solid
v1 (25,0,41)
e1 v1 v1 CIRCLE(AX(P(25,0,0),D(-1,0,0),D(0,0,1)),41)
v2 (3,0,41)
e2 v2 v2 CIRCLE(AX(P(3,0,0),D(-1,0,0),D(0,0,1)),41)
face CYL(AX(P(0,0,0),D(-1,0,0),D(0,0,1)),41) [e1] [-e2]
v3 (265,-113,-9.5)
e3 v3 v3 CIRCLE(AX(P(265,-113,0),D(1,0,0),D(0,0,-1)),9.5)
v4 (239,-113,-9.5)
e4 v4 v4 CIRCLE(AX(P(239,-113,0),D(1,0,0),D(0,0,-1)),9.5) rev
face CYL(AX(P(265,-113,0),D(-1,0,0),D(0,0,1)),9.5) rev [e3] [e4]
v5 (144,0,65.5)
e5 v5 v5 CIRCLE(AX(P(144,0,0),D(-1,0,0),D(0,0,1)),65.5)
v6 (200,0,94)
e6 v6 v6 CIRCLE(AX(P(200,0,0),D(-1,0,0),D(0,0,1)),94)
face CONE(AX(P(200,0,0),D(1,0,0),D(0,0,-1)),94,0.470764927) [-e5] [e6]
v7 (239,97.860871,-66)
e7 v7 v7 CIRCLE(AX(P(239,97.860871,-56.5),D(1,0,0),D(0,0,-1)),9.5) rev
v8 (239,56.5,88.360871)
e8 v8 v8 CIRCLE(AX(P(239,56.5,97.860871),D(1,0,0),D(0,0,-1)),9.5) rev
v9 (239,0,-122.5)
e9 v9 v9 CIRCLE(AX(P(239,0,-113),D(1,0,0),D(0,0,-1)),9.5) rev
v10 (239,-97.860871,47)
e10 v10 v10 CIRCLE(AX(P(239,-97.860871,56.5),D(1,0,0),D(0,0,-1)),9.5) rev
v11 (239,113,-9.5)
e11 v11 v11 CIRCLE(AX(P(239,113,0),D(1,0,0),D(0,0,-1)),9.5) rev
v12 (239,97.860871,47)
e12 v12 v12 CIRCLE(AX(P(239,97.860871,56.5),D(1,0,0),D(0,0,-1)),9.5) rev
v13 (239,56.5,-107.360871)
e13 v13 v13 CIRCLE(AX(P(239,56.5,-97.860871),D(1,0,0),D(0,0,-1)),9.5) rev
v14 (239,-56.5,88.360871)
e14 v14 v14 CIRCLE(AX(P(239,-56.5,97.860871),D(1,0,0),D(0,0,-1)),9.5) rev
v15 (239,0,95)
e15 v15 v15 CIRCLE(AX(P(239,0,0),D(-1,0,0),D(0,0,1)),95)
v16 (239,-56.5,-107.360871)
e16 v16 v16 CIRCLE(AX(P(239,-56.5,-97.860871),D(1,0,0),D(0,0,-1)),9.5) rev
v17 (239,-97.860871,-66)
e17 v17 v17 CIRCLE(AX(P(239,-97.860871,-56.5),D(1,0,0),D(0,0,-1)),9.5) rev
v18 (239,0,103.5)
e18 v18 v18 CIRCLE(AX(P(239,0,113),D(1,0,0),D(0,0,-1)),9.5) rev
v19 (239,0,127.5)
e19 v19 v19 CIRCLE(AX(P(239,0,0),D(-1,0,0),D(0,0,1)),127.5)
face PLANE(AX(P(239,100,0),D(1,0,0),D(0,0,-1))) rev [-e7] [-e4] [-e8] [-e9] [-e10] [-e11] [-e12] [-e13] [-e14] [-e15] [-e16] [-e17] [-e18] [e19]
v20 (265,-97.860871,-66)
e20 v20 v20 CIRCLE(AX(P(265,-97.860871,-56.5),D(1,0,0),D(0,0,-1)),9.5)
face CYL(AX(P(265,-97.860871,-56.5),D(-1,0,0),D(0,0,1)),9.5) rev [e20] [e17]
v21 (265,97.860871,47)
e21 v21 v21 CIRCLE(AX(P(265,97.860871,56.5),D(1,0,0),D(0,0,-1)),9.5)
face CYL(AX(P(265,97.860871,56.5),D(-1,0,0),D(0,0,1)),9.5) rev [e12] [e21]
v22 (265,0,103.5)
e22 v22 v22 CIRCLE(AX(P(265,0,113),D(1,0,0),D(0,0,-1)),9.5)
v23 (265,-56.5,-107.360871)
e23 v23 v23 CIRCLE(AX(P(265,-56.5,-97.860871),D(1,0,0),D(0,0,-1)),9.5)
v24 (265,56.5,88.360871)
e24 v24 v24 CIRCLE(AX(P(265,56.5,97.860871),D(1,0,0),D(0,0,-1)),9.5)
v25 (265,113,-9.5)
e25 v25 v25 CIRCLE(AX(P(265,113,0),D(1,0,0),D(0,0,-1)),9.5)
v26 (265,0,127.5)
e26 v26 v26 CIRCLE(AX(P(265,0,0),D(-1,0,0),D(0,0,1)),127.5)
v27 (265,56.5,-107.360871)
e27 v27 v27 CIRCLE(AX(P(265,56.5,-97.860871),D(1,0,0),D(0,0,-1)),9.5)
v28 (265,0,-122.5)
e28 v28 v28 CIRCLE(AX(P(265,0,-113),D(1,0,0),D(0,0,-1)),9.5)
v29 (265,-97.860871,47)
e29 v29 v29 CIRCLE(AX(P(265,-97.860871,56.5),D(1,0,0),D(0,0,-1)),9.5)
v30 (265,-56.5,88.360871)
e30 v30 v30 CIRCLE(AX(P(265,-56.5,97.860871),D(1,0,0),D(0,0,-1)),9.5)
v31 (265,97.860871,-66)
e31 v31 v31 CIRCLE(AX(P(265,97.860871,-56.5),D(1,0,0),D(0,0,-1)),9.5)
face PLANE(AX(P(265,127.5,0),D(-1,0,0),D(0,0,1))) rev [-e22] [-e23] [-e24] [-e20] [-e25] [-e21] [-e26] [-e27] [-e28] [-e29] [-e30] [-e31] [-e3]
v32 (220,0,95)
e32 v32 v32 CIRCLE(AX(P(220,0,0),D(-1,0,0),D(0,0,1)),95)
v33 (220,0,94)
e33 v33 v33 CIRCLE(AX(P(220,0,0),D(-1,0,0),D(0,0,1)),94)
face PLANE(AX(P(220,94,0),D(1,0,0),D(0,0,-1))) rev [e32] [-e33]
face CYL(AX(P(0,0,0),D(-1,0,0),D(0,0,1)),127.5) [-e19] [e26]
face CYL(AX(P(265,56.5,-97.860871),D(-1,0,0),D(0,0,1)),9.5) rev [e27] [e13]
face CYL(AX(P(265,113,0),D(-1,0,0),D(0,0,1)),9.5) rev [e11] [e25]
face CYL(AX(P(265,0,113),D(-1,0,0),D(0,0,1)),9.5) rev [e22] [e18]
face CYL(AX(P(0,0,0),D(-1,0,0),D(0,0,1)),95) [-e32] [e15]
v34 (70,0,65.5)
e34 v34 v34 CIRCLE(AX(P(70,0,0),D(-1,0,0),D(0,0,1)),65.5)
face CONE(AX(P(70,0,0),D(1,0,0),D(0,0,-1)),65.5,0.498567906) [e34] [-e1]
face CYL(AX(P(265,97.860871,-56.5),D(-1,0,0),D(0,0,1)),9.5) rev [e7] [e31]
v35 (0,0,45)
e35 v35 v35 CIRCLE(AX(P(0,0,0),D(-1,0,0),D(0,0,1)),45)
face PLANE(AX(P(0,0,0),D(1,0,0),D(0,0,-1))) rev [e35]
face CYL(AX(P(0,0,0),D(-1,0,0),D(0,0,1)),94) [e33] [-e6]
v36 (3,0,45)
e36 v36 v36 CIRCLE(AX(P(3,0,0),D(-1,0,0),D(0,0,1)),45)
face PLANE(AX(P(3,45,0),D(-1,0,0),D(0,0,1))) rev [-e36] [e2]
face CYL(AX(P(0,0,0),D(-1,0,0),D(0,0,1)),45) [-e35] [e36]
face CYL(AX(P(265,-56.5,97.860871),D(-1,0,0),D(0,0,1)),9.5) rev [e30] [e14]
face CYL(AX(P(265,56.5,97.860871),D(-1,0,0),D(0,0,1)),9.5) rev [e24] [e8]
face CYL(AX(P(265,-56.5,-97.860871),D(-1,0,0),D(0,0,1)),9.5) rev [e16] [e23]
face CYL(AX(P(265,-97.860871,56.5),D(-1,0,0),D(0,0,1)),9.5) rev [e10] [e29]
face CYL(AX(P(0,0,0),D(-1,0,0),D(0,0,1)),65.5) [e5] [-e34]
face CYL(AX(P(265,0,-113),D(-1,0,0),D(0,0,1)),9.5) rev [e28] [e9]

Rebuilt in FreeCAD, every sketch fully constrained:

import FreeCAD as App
import Part
import Sketcher

V = App.Vector
Q = App.Units.Quantity


def add_polygon(sketch, points):
    """Adds a closed chain of lines whose ends are joined by coincident constraints."""
    first, n = sketch.GeometryCount, len(points)
    for a, b in zip(points, points[1:] + points[:1]):
        sketch.addGeometry(Part.LineSegment(App.Vector(*a, 0), App.Vector(*b, 0)), False)
    for i in range(n):
        sketch.addConstraint(Sketcher.Constraint("Coincident", first + i, 2, first + (i + 1) % n, 1))

doc = App.newDocument("Part")
body = doc.addObject("PartDesign::Body", "Body")

sketch1 = body.newObject("Sketcher::SketchObject", "Sketch")
sketch1.AttachmentSupport = (doc.getObject("XY_Plane"), [""])
sketch1.MapMode = "FlatFace"
add_polygon(sketch1, [(0, 0), (265, 0), (265, 127.5), (239, 127.5), (239, 95), (220, 95), (220, 94), (200, 94), (144, 65.5), (70, 65.5), (25, 41), (3, 41), (3, 45), (0, 45)])
sketch1.addConstraint([
    Sketcher.Constraint("Horizontal", 0),
    Sketcher.Constraint("Vertical", 1),
    Sketcher.Constraint("Horizontal", 2),
    Sketcher.Constraint("Vertical", 3),
    Sketcher.Constraint("Horizontal", 4),
    Sketcher.Constraint("Vertical", 5),
    Sketcher.Constraint("Horizontal", 6),
    Sketcher.Constraint("Horizontal", 8),
    Sketcher.Constraint("Horizontal", 10),
    Sketcher.Constraint("Vertical", 11),
    Sketcher.Constraint("Horizontal", 12),
    Sketcher.Constraint("Vertical", 13),
    Sketcher.Constraint("Coincident", 13, 2, -1, 1),
    Sketcher.Constraint("DistanceX", 0, 1, 0, 2, Q("265 mm")),
    Sketcher.Constraint("DistanceX", 2, 2, 2, 1, Q("26 mm")),
    Sketcher.Constraint("DistanceX", 4, 2, 4, 1, Q("19 mm")),
    Sketcher.Constraint("DistanceX", 6, 2, 6, 1, Q("20 mm")),
    Sketcher.Constraint("DistanceX", 8, 2, 8, 1, Q("74 mm")),
    Sketcher.Constraint("DistanceX", 10, 2, 10, 1, Q("22 mm")),
    Sketcher.Constraint("DistanceX", 12, 2, 12, 1, Q("3 mm")),
    Sketcher.Constraint("DistanceY", 5, 2, 5, 1, Q("1 mm")),
    Sketcher.Constraint("DistanceY", 11, 1, 11, 2, Q("4 mm")),
    Sketcher.Constraint("DistanceY", 13, 2, 13, 1, Q("45 mm")),
    Sketcher.Constraint("DistanceY", 1, 1, 1, 2, Q("127.5 mm")),
    Sketcher.Constraint("DistanceY", 3, 2, 3, 1, Q("32.5 mm")),
    Sketcher.Constraint("DistanceX", -1, 1, 7, 2, Q("144 mm")),
    Sketcher.Constraint("DistanceY", 7, 2, 2, 2, Q("62 mm")),
])
revolution = body.newObject("PartDesign::Revolution", "Revolution")
revolution.Profile = sketch1
revolution.ReferenceAxis = (sketch1, ["H_Axis"])
revolution.Angle = 360

sketch2 = body.newObject("Sketcher::SketchObject", "Sketch001")
sketch2.AttachmentSupport = (doc.getObject("YZ_Plane"), [""])
sketch2.MapMode = "FlatFace"
sketch2.addGeometry(Part.Circle(V(113, 0, 0), V(0, 0, 1), 10), False)
sketch2.addConstraint([
    Sketcher.Constraint("PointOnObject", 0, 3, -1),
    Sketcher.Constraint("Diameter", 0, Q("19 mm")),
    Sketcher.Constraint("DistanceX", -1, 1, 0, 3, Q("113 mm")),
])
pocket1 = body.newObject("PartDesign::Pocket", "Pocket")
pocket1.Profile = sketch2
pocket1.Type = "ThroughAll"
pocket1.Reversed = True

sketch3 = body.newObject("Sketcher::SketchObject", "Sketch002")
sketch3.AttachmentSupport = (doc.getObject("YZ_Plane"), [""])
sketch3.MapMode = "FlatFace"
sketch3.addGeometry(Part.Circle(V(98, 56, 0), V(0, 0, 1), 10), False)
sketch3.addConstraint([
    Sketcher.Constraint("Diameter", 0, Q("19 mm")),
    Sketcher.Constraint("DistanceY", -1, 1, 0, 3, Q("56.5 mm")),
    Sketcher.Constraint("DistanceX", -1, 1, 0, 3, Q("97.860871 mm")),
])
pocket2 = body.newObject("PartDesign::Pocket", "Pocket001")
pocket2.Profile = sketch3
pocket2.Type = "ThroughAll"
pocket2.Reversed = True

sketch4 = body.newObject("Sketcher::SketchObject", "Sketch003")
sketch4.AttachmentSupport = (doc.getObject("YZ_Plane"), [""])
sketch4.MapMode = "FlatFace"
sketch4.addGeometry(Part.Circle(V(56, 98, 0), V(0, 0, 1), 10), False)
sketch4.addConstraint([
    Sketcher.Constraint("Diameter", 0, Q("19 mm")),
    Sketcher.Constraint("DistanceX", -1, 1, 0, 3, Q("56.5 mm")),
    Sketcher.Constraint("DistanceY", -1, 1, 0, 3, Q("97.860871 mm")),
])
pocket3 = body.newObject("PartDesign::Pocket", "Pocket002")
pocket3.Profile = sketch4
pocket3.Type = "ThroughAll"
pocket3.Reversed = True

sketch5 = body.newObject("Sketcher::SketchObject", "Sketch004")
sketch5.AttachmentSupport = (doc.getObject("YZ_Plane"), [""])
sketch5.MapMode = "FlatFace"
sketch5.addGeometry(Part.Circle(V(0, 113, 0), V(0, 0, 1), 10), False)
sketch5.addConstraint([
    Sketcher.Constraint("PointOnObject", 0, 3, -2),
    Sketcher.Constraint("Diameter", 0, Q("19 mm")),
    Sketcher.Constraint("DistanceY", -1, 1, 0, 3, Q("113 mm")),
])
pocket4 = body.newObject("PartDesign::Pocket", "Pocket003")
pocket4.Profile = sketch5
pocket4.Type = "ThroughAll"
pocket4.Reversed = True

sketch6 = body.newObject("Sketcher::SketchObject", "Sketch005")
sketch6.AttachmentSupport = (doc.getObject("YZ_Plane"), [""])
sketch6.MapMode = "FlatFace"
sketch6.addGeometry(Part.Circle(V(-56, 98, 0), V(0, 0, 1), 10), False)
sketch6.addConstraint([
    Sketcher.Constraint("Diameter", 0, Q("19 mm")),
    Sketcher.Constraint("DistanceX", 0, 3, -1, 1, Q("56.5 mm")),
    Sketcher.Constraint("DistanceY", -1, 1, 0, 3, Q("97.860871 mm")),
])
pocket5 = body.newObject("PartDesign::Pocket", "Pocket004")
pocket5.Profile = sketch6
pocket5.Type = "ThroughAll"
pocket5.Reversed = True

sketch7 = body.newObject("Sketcher::SketchObject", "Sketch006")
sketch7.AttachmentSupport = (doc.getObject("YZ_Plane"), [""])
sketch7.MapMode = "FlatFace"
sketch7.addGeometry(Part.Circle(V(-98, 56, 0), V(0, 0, 1), 10), False)
sketch7.addConstraint([
    Sketcher.Constraint("Diameter", 0, Q("19 mm")),
    Sketcher.Constraint("DistanceY", -1, 1, 0, 3, Q("56.5 mm")),
    Sketcher.Constraint("DistanceX", 0, 3, -1, 1, Q("97.860871 mm")),
])
pocket6 = body.newObject("PartDesign::Pocket", "Pocket005")
pocket6.Profile = sketch7
pocket6.Type = "ThroughAll"
pocket6.Reversed = True

sketch8 = body.newObject("Sketcher::SketchObject", "Sketch007")
sketch8.AttachmentSupport = (doc.getObject("YZ_Plane"), [""])
sketch8.MapMode = "FlatFace"
sketch8.addGeometry(Part.Circle(V(-113, 0, 0), V(0, 0, 1), 10), False)
sketch8.addConstraint([
    Sketcher.Constraint("PointOnObject", 0, 3, -1),
    Sketcher.Constraint("Diameter", 0, Q("19 mm")),
    Sketcher.Constraint("DistanceX", 0, 3, -1, 1, Q("113 mm")),
])
pocket7 = body.newObject("PartDesign::Pocket", "Pocket006")
pocket7.Profile = sketch8
pocket7.Type = "ThroughAll"
pocket7.Reversed = True

sketch9 = body.newObject("Sketcher::SketchObject", "Sketch008")
sketch9.AttachmentSupport = (doc.getObject("YZ_Plane"), [""])
sketch9.MapMode = "FlatFace"
sketch9.addGeometry(Part.Circle(V(-98, -56, 0), V(0, 0, 1), 10), False)
sketch9.addConstraint([
    Sketcher.Constraint("Diameter", 0, Q("19 mm")),
    Sketcher.Constraint("DistanceY", 0, 3, -1, 1, Q("56.5 mm")),
    Sketcher.Constraint("DistanceX", 0, 3, -1, 1, Q("97.860871 mm")),
])
pocket8 = body.newObject("PartDesign::Pocket", "Pocket007")
pocket8.Profile = sketch9
pocket8.Type = "ThroughAll"
pocket8.Reversed = True

sketch10 = body.newObject("Sketcher::SketchObject", "Sketch009")
sketch10.AttachmentSupport = (doc.getObject("YZ_Plane"), [""])
sketch10.MapMode = "FlatFace"
sketch10.addGeometry(Part.Circle(V(-56, -98, 0), V(0, 0, 1), 10), False)
sketch10.addConstraint([
    Sketcher.Constraint("Diameter", 0, Q("19 mm")),
    Sketcher.Constraint("DistanceX", 0, 3, -1, 1, Q("56.5 mm")),
    Sketcher.Constraint("DistanceY", 0, 3, -1, 1, Q("97.860871 mm")),
])
pocket9 = body.newObject("PartDesign::Pocket", "Pocket008")
pocket9.Profile = sketch10
pocket9.Type = "ThroughAll"
pocket9.Reversed = True

sketch11 = body.newObject("Sketcher::SketchObject", "Sketch010")
sketch11.AttachmentSupport = (doc.getObject("YZ_Plane"), [""])
sketch11.MapMode = "FlatFace"
sketch11.addGeometry(Part.Circle(V(0, -113, 0), V(0, 0, 1), 10), False)
sketch11.addConstraint([
    Sketcher.Constraint("PointOnObject", 0, 3, -2),
    Sketcher.Constraint("Diameter", 0, Q("19 mm")),
    Sketcher.Constraint("DistanceY", 0, 3, -1, 1, Q("113 mm")),
])
pocket10 = body.newObject("PartDesign::Pocket", "Pocket009")
pocket10.Profile = sketch11
pocket10.Type = "ThroughAll"
pocket10.Reversed = True

sketch12 = body.newObject("Sketcher::SketchObject", "Sketch011")
sketch12.AttachmentSupport = (doc.getObject("YZ_Plane"), [""])
sketch12.MapMode = "FlatFace"
sketch12.addGeometry(Part.Circle(V(56, -98, 0), V(0, 0, 1), 10), False)
sketch12.addConstraint([
    Sketcher.Constraint("Diameter", 0, Q("19 mm")),
    Sketcher.Constraint("DistanceX", -1, 1, 0, 3, Q("56.5 mm")),
    Sketcher.Constraint("DistanceY", 0, 3, -1, 1, Q("97.860871 mm")),
])
pocket11 = body.newObject("PartDesign::Pocket", "Pocket010")
pocket11.Profile = sketch12
pocket11.Type = "ThroughAll"
pocket11.Reversed = True

sketch13 = body.newObject("Sketcher::SketchObject", "Sketch012")
sketch13.AttachmentSupport = (doc.getObject("YZ_Plane"), [""])
sketch13.MapMode = "FlatFace"
sketch13.addGeometry(Part.Circle(V(98, -56, 0), V(0, 0, 1), 10), False)
sketch13.addConstraint([
    Sketcher.Constraint("Diameter", 0, Q("19 mm")),
    Sketcher.Constraint("DistanceY", 0, 3, -1, 1, Q("56.5 mm")),
    Sketcher.Constraint("DistanceX", -1, 1, 0, 3, Q("97.860871 mm")),
])
pocket12 = body.newObject("PartDesign::Pocket", "Pocket011")
pocket12.Profile = sketch13
pocket12.Type = "ThroughAll"
pocket12.Reversed = True

doc.recompute()
